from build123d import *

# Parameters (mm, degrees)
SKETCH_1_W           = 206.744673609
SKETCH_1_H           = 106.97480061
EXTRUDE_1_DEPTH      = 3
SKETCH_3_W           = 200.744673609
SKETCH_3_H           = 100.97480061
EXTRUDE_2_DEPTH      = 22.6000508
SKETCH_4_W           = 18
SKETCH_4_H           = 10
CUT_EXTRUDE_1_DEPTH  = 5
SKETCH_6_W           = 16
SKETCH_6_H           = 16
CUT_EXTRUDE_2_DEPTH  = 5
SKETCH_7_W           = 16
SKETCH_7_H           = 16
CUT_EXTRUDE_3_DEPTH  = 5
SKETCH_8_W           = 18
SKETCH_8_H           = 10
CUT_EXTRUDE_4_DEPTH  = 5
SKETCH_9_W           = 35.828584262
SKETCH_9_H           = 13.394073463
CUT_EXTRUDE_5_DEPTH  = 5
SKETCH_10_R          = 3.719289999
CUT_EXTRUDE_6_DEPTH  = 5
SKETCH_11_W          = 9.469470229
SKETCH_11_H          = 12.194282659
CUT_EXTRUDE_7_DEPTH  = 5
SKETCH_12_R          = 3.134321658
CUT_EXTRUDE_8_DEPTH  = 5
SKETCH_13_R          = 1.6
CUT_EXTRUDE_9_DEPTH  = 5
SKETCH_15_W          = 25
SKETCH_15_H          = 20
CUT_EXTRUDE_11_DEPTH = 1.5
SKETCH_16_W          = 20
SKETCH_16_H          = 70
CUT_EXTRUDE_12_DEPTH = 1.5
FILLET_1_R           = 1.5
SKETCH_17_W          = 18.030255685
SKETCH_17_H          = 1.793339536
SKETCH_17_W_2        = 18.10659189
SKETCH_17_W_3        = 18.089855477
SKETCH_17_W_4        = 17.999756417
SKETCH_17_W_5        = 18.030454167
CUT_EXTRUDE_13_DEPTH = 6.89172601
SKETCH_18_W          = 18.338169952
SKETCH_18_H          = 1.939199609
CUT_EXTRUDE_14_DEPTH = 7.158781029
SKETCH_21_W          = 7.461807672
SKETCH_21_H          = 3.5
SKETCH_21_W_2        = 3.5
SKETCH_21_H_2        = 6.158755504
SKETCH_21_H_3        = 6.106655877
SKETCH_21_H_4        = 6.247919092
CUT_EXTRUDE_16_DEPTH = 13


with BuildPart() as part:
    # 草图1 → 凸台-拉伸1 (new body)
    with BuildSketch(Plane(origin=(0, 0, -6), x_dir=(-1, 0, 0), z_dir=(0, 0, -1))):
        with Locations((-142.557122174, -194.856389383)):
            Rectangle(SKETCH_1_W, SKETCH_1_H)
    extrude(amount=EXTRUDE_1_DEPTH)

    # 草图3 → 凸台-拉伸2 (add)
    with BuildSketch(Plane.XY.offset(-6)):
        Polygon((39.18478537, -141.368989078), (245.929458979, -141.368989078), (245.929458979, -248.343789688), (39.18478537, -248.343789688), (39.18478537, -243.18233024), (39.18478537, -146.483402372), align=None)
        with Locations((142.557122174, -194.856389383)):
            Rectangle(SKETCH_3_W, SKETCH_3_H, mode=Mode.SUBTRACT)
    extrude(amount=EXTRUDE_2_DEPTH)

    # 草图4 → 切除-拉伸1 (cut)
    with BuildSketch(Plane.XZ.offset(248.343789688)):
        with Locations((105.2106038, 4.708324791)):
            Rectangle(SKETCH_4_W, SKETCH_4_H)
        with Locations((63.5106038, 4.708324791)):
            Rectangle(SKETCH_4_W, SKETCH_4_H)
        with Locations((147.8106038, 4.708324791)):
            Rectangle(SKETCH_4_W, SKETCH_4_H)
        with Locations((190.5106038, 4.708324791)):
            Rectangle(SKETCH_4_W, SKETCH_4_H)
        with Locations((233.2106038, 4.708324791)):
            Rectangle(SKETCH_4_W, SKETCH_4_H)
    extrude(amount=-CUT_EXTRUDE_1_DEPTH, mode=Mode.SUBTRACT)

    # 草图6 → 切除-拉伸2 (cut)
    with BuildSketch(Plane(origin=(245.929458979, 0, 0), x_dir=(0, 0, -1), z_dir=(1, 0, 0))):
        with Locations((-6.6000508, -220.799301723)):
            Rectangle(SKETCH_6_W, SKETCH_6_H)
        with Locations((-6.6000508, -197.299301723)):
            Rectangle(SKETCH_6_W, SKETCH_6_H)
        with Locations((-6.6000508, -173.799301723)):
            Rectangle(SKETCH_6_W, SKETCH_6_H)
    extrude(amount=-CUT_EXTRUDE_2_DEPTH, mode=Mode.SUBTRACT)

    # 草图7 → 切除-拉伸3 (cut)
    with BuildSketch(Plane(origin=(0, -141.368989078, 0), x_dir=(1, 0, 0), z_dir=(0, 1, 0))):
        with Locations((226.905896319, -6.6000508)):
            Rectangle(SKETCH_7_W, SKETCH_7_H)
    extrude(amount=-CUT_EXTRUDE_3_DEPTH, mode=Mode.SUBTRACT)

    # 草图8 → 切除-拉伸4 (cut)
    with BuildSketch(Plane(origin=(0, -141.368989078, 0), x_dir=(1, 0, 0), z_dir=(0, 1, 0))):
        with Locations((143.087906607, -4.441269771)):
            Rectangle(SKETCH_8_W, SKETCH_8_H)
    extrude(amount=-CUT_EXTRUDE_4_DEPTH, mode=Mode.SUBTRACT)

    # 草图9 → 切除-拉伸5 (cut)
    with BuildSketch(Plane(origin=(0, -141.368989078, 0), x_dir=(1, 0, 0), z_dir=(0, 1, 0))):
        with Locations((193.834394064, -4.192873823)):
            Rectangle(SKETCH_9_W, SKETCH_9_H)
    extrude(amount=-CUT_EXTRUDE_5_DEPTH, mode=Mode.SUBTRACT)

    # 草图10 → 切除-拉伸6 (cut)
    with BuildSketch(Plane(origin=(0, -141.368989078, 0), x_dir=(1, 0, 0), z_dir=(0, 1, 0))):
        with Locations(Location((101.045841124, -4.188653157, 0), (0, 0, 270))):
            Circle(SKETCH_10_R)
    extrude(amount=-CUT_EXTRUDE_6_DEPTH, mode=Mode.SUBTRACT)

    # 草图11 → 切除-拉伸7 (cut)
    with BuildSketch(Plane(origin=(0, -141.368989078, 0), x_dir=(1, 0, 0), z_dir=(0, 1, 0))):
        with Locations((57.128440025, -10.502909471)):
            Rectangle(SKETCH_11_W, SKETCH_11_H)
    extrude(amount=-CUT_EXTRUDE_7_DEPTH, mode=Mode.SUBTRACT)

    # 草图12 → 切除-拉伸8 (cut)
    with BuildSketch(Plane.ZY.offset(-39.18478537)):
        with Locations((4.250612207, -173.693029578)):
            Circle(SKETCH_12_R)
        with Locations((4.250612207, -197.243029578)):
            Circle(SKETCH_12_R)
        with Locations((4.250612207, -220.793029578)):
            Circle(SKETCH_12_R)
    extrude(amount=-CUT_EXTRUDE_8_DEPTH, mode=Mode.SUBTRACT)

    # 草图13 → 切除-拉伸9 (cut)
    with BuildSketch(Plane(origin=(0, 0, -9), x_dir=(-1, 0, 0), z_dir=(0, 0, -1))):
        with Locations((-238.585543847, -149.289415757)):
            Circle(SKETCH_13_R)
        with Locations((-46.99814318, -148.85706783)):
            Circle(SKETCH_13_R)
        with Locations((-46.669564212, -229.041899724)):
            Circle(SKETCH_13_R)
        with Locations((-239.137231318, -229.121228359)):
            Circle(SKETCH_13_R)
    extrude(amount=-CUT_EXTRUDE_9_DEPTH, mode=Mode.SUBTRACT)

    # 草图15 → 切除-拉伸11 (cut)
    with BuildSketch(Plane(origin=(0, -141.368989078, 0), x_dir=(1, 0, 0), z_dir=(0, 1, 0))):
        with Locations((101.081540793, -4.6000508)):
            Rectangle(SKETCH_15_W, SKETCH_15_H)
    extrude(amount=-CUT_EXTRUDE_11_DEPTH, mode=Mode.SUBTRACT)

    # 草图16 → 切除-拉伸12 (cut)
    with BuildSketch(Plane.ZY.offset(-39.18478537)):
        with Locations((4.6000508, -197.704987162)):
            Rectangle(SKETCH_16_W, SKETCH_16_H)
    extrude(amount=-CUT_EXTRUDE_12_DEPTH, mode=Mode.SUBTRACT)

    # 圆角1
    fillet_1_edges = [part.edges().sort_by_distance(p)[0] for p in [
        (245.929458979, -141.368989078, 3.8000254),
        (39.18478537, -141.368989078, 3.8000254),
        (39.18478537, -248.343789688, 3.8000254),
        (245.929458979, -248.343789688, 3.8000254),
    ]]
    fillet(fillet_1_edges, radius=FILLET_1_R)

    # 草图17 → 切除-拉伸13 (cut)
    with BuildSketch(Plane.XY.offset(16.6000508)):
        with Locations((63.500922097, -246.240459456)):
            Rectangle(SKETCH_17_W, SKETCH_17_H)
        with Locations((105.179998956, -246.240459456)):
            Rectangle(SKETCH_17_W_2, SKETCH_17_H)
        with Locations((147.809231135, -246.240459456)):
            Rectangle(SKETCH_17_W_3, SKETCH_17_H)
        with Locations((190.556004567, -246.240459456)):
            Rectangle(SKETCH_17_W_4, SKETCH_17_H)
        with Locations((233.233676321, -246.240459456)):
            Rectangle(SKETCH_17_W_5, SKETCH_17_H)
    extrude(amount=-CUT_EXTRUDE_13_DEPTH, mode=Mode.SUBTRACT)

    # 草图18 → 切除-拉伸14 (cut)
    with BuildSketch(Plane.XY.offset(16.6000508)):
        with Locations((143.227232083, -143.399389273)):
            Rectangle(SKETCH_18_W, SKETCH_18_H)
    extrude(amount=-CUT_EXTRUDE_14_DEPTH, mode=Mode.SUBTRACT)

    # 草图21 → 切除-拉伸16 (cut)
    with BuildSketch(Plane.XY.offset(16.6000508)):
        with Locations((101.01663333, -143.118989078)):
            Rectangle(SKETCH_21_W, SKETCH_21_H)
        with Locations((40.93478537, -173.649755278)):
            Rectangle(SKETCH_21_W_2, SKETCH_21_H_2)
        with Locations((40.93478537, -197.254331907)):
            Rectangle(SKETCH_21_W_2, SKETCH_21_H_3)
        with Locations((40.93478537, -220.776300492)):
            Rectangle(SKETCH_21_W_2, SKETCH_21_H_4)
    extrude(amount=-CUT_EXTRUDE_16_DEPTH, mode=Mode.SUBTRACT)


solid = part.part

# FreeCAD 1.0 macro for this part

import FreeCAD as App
import Part
import Sketcher
from FreeCAD import Vector
Q = App.Units.Quantity


def edges_at(feature, points):
    """Names of the edges that pass closest to the given points."""
    edges = feature.Shape.Edges
    near = lambda p: min(range(len(edges)), key=lambda i: edges[i].distToShape(Part.Vertex(*p))[0])
    return sorted({f"Edge{near(p) + 1}" for p in points})

doc = App.newDocument("Part")
body = doc.addObject("PartDesign::Body", "Body")

sketch1 = body.newObject("Sketcher::SketchObject", "Sketch")
sketch1.AttachmentSupport = (doc.getObject("XY_Plane"), [""])
sketch1.MapMode = "FlatFace"
sketch1.AttachmentOffset = App.Placement(Vector(0, 0, -6), App.Rotation())
sketch1.addGeometry(Part.LineSegment(Vector(245.929459, -141.368989, 0), Vector(245.929459, -248.34379, 0)), False)
sketch1.addGeometry(Part.LineSegment(Vector(245.929459, -248.34379, 0), Vector(39.184785, -248.34379, 0)), False)
sketch1.addGeometry(Part.LineSegment(Vector(39.184785, -248.34379, 0), Vector(39.184785, -141.368989, 0)), False)
sketch1.addGeometry(Part.LineSegment(Vector(39.184785, -141.368989, 0), Vector(245.929459, -141.368989, 0)), False)
sketch1.addConstraint(Sketcher.Constraint("Coincident", 0, 2, 1, 1))
sketch1.addConstraint(Sketcher.Constraint("Coincident", 1, 2, 2, 1))
sketch1.addConstraint(Sketcher.Constraint("Coincident", 2, 2, 3, 1))
sketch1.addConstraint(Sketcher.Constraint("Coincident", 3, 2, 0, 1))
sketch1.addConstraint(Sketcher.Constraint("Vertical", 0))
sketch1.addConstraint(Sketcher.Constraint("Horizontal", 1))
sketch1.addConstraint(Sketcher.Constraint("Vertical", 2))
sketch1.addConstraint(Sketcher.Constraint("Horizontal", 3))
sketch1.addConstraint(Sketcher.Constraint("DistanceY", 0, 2, 0, 1, Q("106.974801 mm")))
sketch1.addConstraint(Sketcher.Constraint("DistanceX", 1, 2, 1, 1, Q("206.744674 mm")))
sketch1.addConstraint(Sketcher.Constraint("DistanceX", -1, 1, 0, 2, Q("245.929459 mm")))
sketch1.addConstraint(Sketcher.Constraint("DistanceY", 0, 2, -1, 1, Q("248.34379 mm")))
pad1 = body.newObject("PartDesign::Pad", "Pad")
pad1.Profile = sketch1
pad1.Length = 3
pad1.Reversed = True

sketch2 = body.newObject("Sketcher::SketchObject", "Sketch001")
sketch2.AttachmentSupport = (doc.getObject("XY_Plane"), [""])
sketch2.MapMode = "FlatFace"
sketch2.AttachmentOffset = App.Placement(Vector(0, 0, -6), App.Rotation())
sketch2.addGeometry(Part.LineSegment(Vector(245.929459, -141.368989, 0), Vector(39.184785, -141.368989, 0)), False)
sketch2.addGeometry(Part.LineSegment(Vector(39.184785, -141.368989, 0), Vector(39.184785, -248.34379, 0)), False)
sketch2.addGeometry(Part.LineSegment(Vector(39.184785, -248.34379, 0), Vector(245.929459, -248.34379, 0)), False)
sketch2.addGeometry(Part.LineSegment(Vector(245.929459, -248.34379, 0), Vector(245.929459, -141.368989, 0)), False)
sketch2.addGeometry(Part.LineSegment(Vector(42.184785, -245.34379, 0), Vector(42.184785, -144.368989, 0)), False)
sketch2.addGeometry(Part.LineSegment(Vector(42.184785, -144.368989, 0), Vector(242.929459, -144.368989, 0)), False)
sketch2.addGeometry(Part.LineSegment(Vector(242.929459, -144.368989, 0), Vector(242.929459, -245.34379, 0)), False)
sketch2.addGeometry(Part.LineSegment(Vector(242.929459, -245.34379, 0), Vector(42.184785, -245.34379, 0)), False)
sketch2.addConstraint(Sketcher.Constraint("Coincident", 0, 2, 1, 1))
sketch2.addConstraint(Sketcher.Constraint("Coincident", 1, 2, 2, 1))
sketch2.addConstraint(Sketcher.Constraint("Coincident", 2, 2, 3, 1))
sketch2.addConstraint(Sketcher.Constraint("Coincident", 3, 2, 0, 1))
sketch2.addConstraint(Sketcher.Constraint("Coincident", 4, 2, 5, 1))
sketch2.addConstraint(Sketcher.Constraint("Coincident", 5, 2, 6, 1))
sketch2.addConstraint(Sketcher.Constraint("Coincident", 6, 2, 7, 1))
sketch2.addConstraint(Sketcher.Constraint("Coincident", 7, 2, 4, 1))
sketch2.addConstraint(Sketcher.Constraint("Horizontal", 0))
sketch2.addConstraint(Sketcher.Constraint("Vertical", 1))
sketch2.addConstraint(Sketcher.Constraint("Horizontal", 2))
sketch2.addConstraint(Sketcher.Constraint("Vertical", 3))
sketch2.addConstraint(Sketcher.Constraint("Vertical", 4))
sketch2.addConstraint(Sketcher.Constraint("Horizontal", 5))
sketch2.addConstraint(Sketcher.Constraint("Vertical", 6))
sketch2.addConstraint(Sketcher.Constraint("Horizontal", 7))
sketch2.addConstraint(Sketcher.Constraint("DistanceX", 0, 2, 4, 2, Q("3 mm")))
sketch2.addConstraint(Sketcher.Constraint("DistanceY", 4, 2, 0, 2, Q("3 mm")))
sketch2.addConstraint(Sketcher.Constraint("DistanceX", 5, 2, 3, 2, Q("3 mm")))
sketch2.addConstraint(Sketcher.Constraint("DistanceY", 2, 2, 6, 2, Q("3 mm")))
sketch2.addConstraint(Sketcher.Constraint("DistanceY", 1, 2, 1, 1, Q("106.974801 mm")))
sketch2.addConstraint(Sketcher.Constraint("DistanceX", 0, 2, 0, 1, Q("206.744674 mm")))
sketch2.addConstraint(Sketcher.Constraint("DistanceY", 0, 2, -1, 1, Q("141.368989 mm")))
sketch2.addConstraint(Sketcher.Constraint("DistanceX", -1, 1, 2, 2, Q("245.929459 mm")))
pad2 = body.newObject("PartDesign::Pad", "Pad001")
pad2.Profile = sketch2
pad2.Length = 22.600051

sketch3 = body.newObject("Sketcher::SketchObject", "Sketch002")
sketch3.AttachmentSupport = (doc.getObject("XZ_Plane"), [""])
sketch3.MapMode = "FlatFace"
sketch3.AttachmentOffset = App.Placement(Vector(0, 0, 248.34379), App.Rotation())
sketch3.addGeometry(Part.LineSegment(Vector(96.210604, 9.708325, 0), Vector(96.210604, -0.291675, 0)), False)
sketch3.addGeometry(Part.LineSegment(Vector(96.210604, -0.291675, 0), Vector(114.210604, -0.291675, 0)), False)
sketch3.addGeometry(Part.LineSegment(Vector(114.210604, -0.291675, 0), Vector(114.210604, 9.708325, 0)), False)
sketch3.addGeometry(Part.LineSegment(Vector(114.210604, 9.708325, 0), Vector(96.210604, 9.708325, 0)), False)
sketch3.addGeometry(Part.LineSegment(Vector(54.510604, 9.708325, 0), Vector(54.510604, -0.291675, 0)), False)
sketch3.addGeometry(Part.LineSegment(Vector(54.510604, -0.291675, 0), Vector(72.510604, -0.291675, 0)), False)
sketch3.addGeometry(Part.LineSegment(Vector(72.510604, -0.291675, 0), Vector(72.510604, 9.708325, 0)), False)
sketch3.addGeometry(Part.LineSegment(Vector(72.510604, 9.708325, 0), Vector(54.510604, 9.708325, 0)), False)
sketch3.addGeometry(Part.LineSegment(Vector(138.810604, 9.708325, 0), Vector(138.810604, -0.291675, 0)), False)
sketch3.addGeometry(Part.LineSegment(Vector(138.810604, -0.291675, 0), Vector(156.810604, -0.291675, 0)), False)
sketch3.addGeometry(Part.LineSegment(Vector(156.810604, -0.291675, 0), Vector(156.810604, 9.708325, 0)), False)
sketch3.addGeometry(Part.LineSegment(Vector(156.810604, 9.708325, 0), Vector(138.810604, 9.708325, 0)), False)
sketch3.addGeometry(Part.LineSegment(Vector(181.510604, 9.708325, 0), Vector(181.510604, -0.291675, 0)), False)
sketch3.addGeometry(Part.LineSegment(Vector(181.510604, -0.291675, 0), Vector(199.510604, -0.291675, 0)), False)
sketch3.addGeometry(Part.LineSegment(Vector(199.510604, -0.291675, 0), Vector(199.510604, 9.708325, 0)), False)
sketch3.addGeometry(Part.LineSegment(Vector(199.510604, 9.708325, 0), Vector(181.510604, 9.708325, 0)), False)
sketch3.addGeometry(Part.LineSegment(Vector(224.210604, 9.708325, 0), Vector(224.210604, -0.291675, 0)), False)
sketch3.addGeometry(Part.LineSegment(Vector(224.210604, -0.291675, 0), Vector(242.210604, -0.291675, 0)), False)
sketch3.addGeometry(Part.LineSegment(Vector(242.210604, -0.291675, 0), Vector(242.210604, 9.708325, 0)), False)
sketch3.addGeometry(Part.LineSegment(Vector(242.210604, 9.708325, 0), Vector(224.210604, 9.708325, 0)), False)
sketch3.addConstraint(Sketcher.Constraint("Coincident", 0, 2, 1, 1))
sketch3.addConstraint(Sketcher.Constraint("Coincident", 1, 2, 2, 1))
sketch3.addConstraint(Sketcher.Constraint("Coincident", 2, 2, 3, 1))
sketch3.addConstraint(Sketcher.Constraint("Coincident", 3, 2, 0, 1))
sketch3.addConstraint(Sketcher.Constraint("Coincident", 4, 2, 5, 1))
sketch3.addConstraint(Sketcher.Constraint("Coincident", 5, 2, 6, 1))
sketch3.addConstraint(Sketcher.Constraint("Coincident", 6, 2, 7, 1))
sketch3.addConstraint(Sketcher.Constraint("Coincident", 7, 2, 4, 1))
sketch3.addConstraint(Sketcher.Constraint("Coincident", 8, 2, 9, 1))
sketch3.addConstraint(Sketcher.Constraint("Coincident", 9, 2, 10, 1))
sketch3.addConstraint(Sketcher.Constraint("Coincident", 10, 2, 11, 1))
sketch3.addConstraint(Sketcher.Constraint("Coincident", 11, 2, 8, 1))
sketch3.addConstraint(Sketcher.Constraint("Coincident", 12, 2, 13, 1))
sketch3.addConstraint(Sketcher.Constraint("Coincident", 13, 2, 14, 1))
sketch3.addConstraint(Sketcher.Constraint("Coincident", 14, 2, 15, 1))
sketch3.addConstraint(Sketcher.Constraint("Coincident", 15, 2, 12, 1))
sketch3.addConstraint(Sketcher.Constraint("Coincident", 16, 2, 17, 1))
sketch3.addConstraint(Sketcher.Constraint("Coincident", 17, 2, 18, 1))
sketch3.addConstraint(Sketcher.Constraint("Coincident", 18, 2, 19, 1))
sketch3.addConstraint(Sketcher.Constraint("Coincident", 19, 2, 16, 1))
sketch3.addConstraint(Sketcher.Constraint("Vertical", 0))
sketch3.addConstraint(Sketcher.Constraint("Horizontal", 1))
sketch3.addConstraint(Sketcher.Constraint("Vertical", 2))
sketch3.addConstraint(Sketcher.Constraint("Horizontal", 3))
sketch3.addConstraint(Sketcher.Constraint("Vertical", 4))
sketch3.addConstraint(Sketcher.Constraint("Horizontal", 5))
sketch3.addConstraint(Sketcher.Constraint("Vertical", 6))
sketch3.addConstraint(Sketcher.Constraint("Horizontal", 7))
sketch3.addConstraint(Sketcher.Constraint("Vertical", 8))
sketch3.addConstraint(Sketcher.Constraint("Horizontal", 9))
sketch3.addConstraint(Sketcher.Constraint("Vertical", 10))
sketch3.addConstraint(Sketcher.Constraint("Horizontal", 11))
sketch3.addConstraint(Sketcher.Constraint("Vertical", 12))
sketch3.addConstraint(Sketcher.Constraint("Horizontal", 13))
sketch3.addConstraint(Sketcher.Constraint("Vertical", 14))
sketch3.addConstraint(Sketcher.Constraint("Horizontal", 15))
sketch3.addConstraint(Sketcher.Constraint("Vertical", 16))
sketch3.addConstraint(Sketcher.Constraint("Horizontal", 17))
sketch3.addConstraint(Sketcher.Constraint("Vertical", 18))
sketch3.addConstraint(Sketcher.Constraint("Horizontal", 19))
sketch3.addConstraint(Sketcher.Constraint("Horizontal", 1, 2, 4, 2))
sketch3.addConstraint(Sketcher.Constraint("Horizontal", 3, 2, 6, 2))
sketch3.addConstraint(Sketcher.Constraint("Horizontal", 5, 2, 8, 2))
sketch3.addConstraint(Sketcher.Constraint("Horizontal", 7, 2, 10, 2))
sketch3.addConstraint(Sketcher.Constraint("Horizontal", 9, 2, 12, 2))
sketch3.addConstraint(Sketcher.Constraint("Horizontal", 11, 2, 14, 2))
sketch3.addConstraint(Sketcher.Constraint("Horizontal", 13, 2, 16, 2))
sketch3.addConstraint(Sketcher.Constraint("Horizontal", 15, 2, 18, 2))
sketch3.addConstraint(Sketcher.Constraint("Equal", 3, 5))
sketch3.addConstraint(Sketcher.Constraint("Equal", 7, 9))
sketch3.addConstraint(Sketcher.Constraint("Equal", 11, 13))
sketch3.addConstraint(Sketcher.Constraint("Equal", 15, 17))
sketch3.addConstraint(Sketcher.Constraint("DistanceX", 1, 1, 1, 2, Q("18 mm")))
sketch3.addConstraint(Sketcher.Constraint("DistanceY", 0, 2, 0, 1, Q("10 mm")))
sketch3.addConstraint(Sketcher.Constraint("DistanceX", 4, 2, 0, 2, Q("41.7 mm")))
sketch3.addConstraint(Sketcher.Constraint("DistanceX", 1, 2, 8, 2, Q("24.6 mm")))
sketch3.addConstraint(Sketcher.Constraint("DistanceX", 9, 2, 12, 2, Q("24.7 mm")))
sketch3.addConstraint(Sketcher.Constraint("DistanceX", 13, 2, 16, 2, Q("24.7 mm")))
sketch3.addConstraint(Sketcher.Constraint("DistanceX", -1, 1, 0, 2, Q("96.210604 mm")))
sketch3.addConstraint(Sketcher.Constraint("DistanceY", 0, 2, -1, 1, Q("0.291675 mm")))
pocket1 = body.newObject("PartDesign::Pocket", "Pocket")
pocket1.Profile = sketch3
pocket1.Length = 5

sketch4 = body.newObject("Sketcher::SketchObject", "Sketch003")
sketch4.AttachmentSupport = (doc.getObject("YZ_Plane"), [""])
sketch4.MapMode = "FlatFace"
sketch4.AttachmentOffset = App.Placement(Vector(0, 0, 245.929459), App.Rotation())
sketch4.addGeometry(Part.LineSegment(Vector(-212.799302, 14.600051, 0), Vector(-228.799302, 14.600051, 0)), False)
sketch4.addGeometry(Part.LineSegment(Vector(-228.799302, 14.600051, 0), Vector(-228.799302, -1.399949, 0)), False)
sketch4.addGeometry(Part.LineSegment(Vector(-228.799302, -1.399949, 0), Vector(-212.799302, -1.399949, 0)), False)
sketch4.addGeometry(Part.LineSegment(Vector(-212.799302, -1.399949, 0), Vector(-212.799302, 14.600051, 0)), False)
sketch4.addGeometry(Part.LineSegment(Vector(-189.299302, 14.600051, 0), Vector(-205.299302, 14.600051, 0)), False)
sketch4.addGeometry(Part.LineSegment(Vector(-205.299302, 14.600051, 0), Vector(-205.299302, -1.399949, 0)), False)
sketch4.addGeometry(Part.LineSegment(Vector(-205.299302, -1.399949, 0), Vector(-189.299302, -1.399949, 0)), False)
sketch4.addGeometry(Part.LineSegment(Vector(-189.299302, -1.399949, 0), Vector(-189.299302, 14.600051, 0)), False)
sketch4.addGeometry(Part.LineSegment(Vector(-165.799302, 14.600051, 0), Vector(-181.799302, 14.600051, 0)), False)
sketch4.addGeometry(Part.LineSegment(Vector(-181.799302, 14.600051, 0), Vector(-181.799302, -1.399949, 0)), False)
sketch4.addGeometry(Part.LineSegment(Vector(-181.799302, -1.399949, 0), Vector(-165.799302, -1.399949, 0)), False)
sketch4.addGeometry(Part.LineSegment(Vector(-165.799302, -1.399949, 0), Vector(-165.799302, 14.600051, 0)), False)
sketch4.addConstraint(Sketcher.Constraint("Coincident", 0, 2, 1, 1))
sketch4.addConstraint(Sketcher.Constraint("Coincident", 1, 2, 2, 1))
sketch4.addConstraint(Sketcher.Constraint("Coincident", 2, 2, 3, 1))
sketch4.addConstraint(Sketcher.Constraint("Coincident", 3, 2, 0, 1))
sketch4.addConstraint(Sketcher.Constraint("Coincident", 4, 2, 5, 1))
sketch4.addConstraint(Sketcher.Constraint("Coincident", 5, 2, 6, 1))
sketch4.addConstraint(Sketcher.Constraint("Coincident", 6, 2, 7, 1))
sketch4.addConstraint(Sketcher.Constraint("Coincident", 7, 2, 4, 1))
sketch4.addConstraint(Sketcher.Constraint("Coincident", 8, 2, 9, 1))
sketch4.addConstraint(Sketcher.Constraint("Coincident", 9, 2, 10, 1))
sketch4.addConstraint(Sketcher.Constraint("Coincident", 10, 2, 11, 1))
sketch4.addConstraint(Sketcher.Constraint("Coincident", 11, 2, 8, 1))
sketch4.addConstraint(Sketcher.Constraint("Horizontal", 0))
sketch4.addConstraint(Sketcher.Constraint("Vertical", 1))
sketch4.addConstraint(Sketcher.Constraint("Horizontal", 2))
sketch4.addConstraint(Sketcher.Constraint("Vertical", 3))
sketch4.addConstraint(Sketcher.Constraint("Horizontal", 4))
sketch4.addConstraint(Sketcher.Constraint("Vertical", 5))
sketch4.addConstraint(Sketcher.Constraint("Horizontal", 6))
sketch4.addConstraint(Sketcher.Constraint("Vertical", 7))
sketch4.addConstraint(Sketcher.Constraint("Horizontal", 8))
sketch4.addConstraint(Sketcher.Constraint("Vertical", 9))
sketch4.addConstraint(Sketcher.Constraint("Horizontal", 10))
sketch4.addConstraint(Sketcher.Constraint("Vertical", 11))
sketch4.addConstraint(Sketcher.Constraint("Horizontal", 3, 2, 4, 2))
sketch4.addConstraint(Sketcher.Constraint("Horizontal", 2, 2, 5, 2))
sketch4.addConstraint(Sketcher.Constraint("Horizontal", 7, 2, 8, 2))
sketch4.addConstraint(Sketcher.Constraint("Horizontal", 6, 2, 9, 2))
sketch4.addConstraint(Sketcher.Constraint("Equal", 2, 4))
sketch4.addConstraint(Sketcher.Constraint("Equal", 6, 8))
sketch4.addConstraint(Sketcher.Constraint("Equal", 10, 1))
sketch4.addConstraint(Sketcher.Constraint("DistanceX", 0, 2, 0, 1, Q("16 mm")))
sketch4.addConstraint(Sketcher.Constraint("DistanceX", 3, 2, 8, 2, Q("31 mm")))
sketch4.addConstraint(Sketcher.Constraint("DistanceX", 3, 2, 4, 2, Q("7.5 mm")))
sketch4.addConstraint(Sketcher.Constraint("DistanceX", 0, 2, -1, 1, Q("228.799302 mm")))
sketch4.addConstraint(Sketcher.Constraint("DistanceY", -1, 1, 0, 2, Q("14.600051 mm")))
pocket2 = body.newObject("PartDesign::Pocket", "Pocket001")
pocket2.Profile = sketch4
pocket2.Length = 5

sketch5 = body.newObject("Sketcher::SketchObject", "Sketch004")
sketch5.AttachmentSupport = (doc.getObject("XZ_Plane"), [""])
sketch5.MapMode = "FlatFace"
sketch5.AttachmentOffset = App.Placement(Vector(0, 0, 141.368989), App.Rotation())
sketch5.addGeometry(Part.LineSegment(Vector(218.905896, -1.399949, 0), Vector(218.905896, 14.600051, 0)), False)
sketch5.addGeometry(Part.LineSegment(Vector(218.905896, 14.600051, 0), Vector(234.905896, 14.600051, 0)), False)
sketch5.addGeometry(Part.LineSegment(Vector(234.905896, 14.600051, 0), Vector(234.905896, -1.399949, 0)), False)
sketch5.addGeometry(Part.LineSegment(Vector(234.905896, -1.399949, 0), Vector(218.905896, -1.399949, 0)), False)
sketch5.addConstraint(Sketcher.Constraint("Coincident", 0, 2, 1, 1))
sketch5.addConstraint(Sketcher.Constraint("Coincident", 1, 2, 2, 1))
sketch5.addConstraint(Sketcher.Constraint("Coincident", 2, 2, 3, 1))
sketch5.addConstraint(Sketcher.Constraint("Coincident", 3, 2, 0, 1))
sketch5.addConstraint(Sketcher.Constraint("Vertical", 0))
sketch5.addConstraint(Sketcher.Constraint("Horizontal", 1))
sketch5.addConstraint(Sketcher.Constraint("Vertical", 2))
sketch5.addConstraint(Sketcher.Constraint("Horizontal", 3))
sketch5.addConstraint(Sketcher.Constraint("Equal", 3, 0))
sketch5.addConstraint(Sketcher.Constraint("DistanceX", 1, 1, 1, 2, Q("16 mm")))
sketch5.addConstraint(Sketcher.Constraint("DistanceY", -1, 1, 0, 2, Q("14.600051 mm")))
sketch5.addConstraint(Sketcher.Constraint("DistanceX", -1, 1, 0, 2, Q("218.905896 mm")))
pocket3 = body.newObject("PartDesign::Pocket", "Pocket002")
pocket3.Profile = sketch5
pocket3.Length = 5
pocket3.Reversed = True

sketch6 = body.newObject("Sketcher::SketchObject", "Sketch005")
sketch6.AttachmentSupport = (doc.getObject("XZ_Plane"), [""])
sketch6.MapMode = "FlatFace"
sketch6.AttachmentOffset = App.Placement(Vector(0, 0, 141.368989), App.Rotation())
sketch6.addGeometry(Part.LineSegment(Vector(134.087907, -0.55873, 0), Vector(134.087907, 9.44127, 0)), False)
sketch6.addGeometry(Part.LineSegment(Vector(134.087907, 9.44127, 0), Vector(152.087907, 9.44127, 0)), False)
sketch6.addGeometry(Part.LineSegment(Vector(152.087907, 9.44127, 0), Vector(152.087907, -0.55873, 0)), False)
sketch6.addGeometry(Part.LineSegment(Vector(152.087907, -0.55873, 0), Vector(134.087907, -0.55873, 0)), False)
sketch6.addConstraint(Sketcher.Constraint("Coincident", 0, 2, 1, 1))
sketch6.addConstraint(Sketcher.Constraint("Coincident", 1, 2, 2, 1))
sketch6.addConstraint(Sketcher.Constraint("Coincident", 2, 2, 3, 1))
sketch6.addConstraint(Sketcher.Constraint("Coincident", 3, 2, 0, 1))
sketch6.addConstraint(Sketcher.Constraint("Vertical", 0))
sketch6.addConstraint(Sketcher.Constraint("Horizontal", 1))
sketch6.addConstraint(Sketcher.Constraint("Vertical", 2))
sketch6.addConstraint(Sketcher.Constraint("Horizontal", 3))
sketch6.addConstraint(Sketcher.Constraint("DistanceX", 1, 1, 1, 2, Q("18 mm")))
sketch6.addConstraint(Sketcher.Constraint("DistanceY", 0, 1, 0, 2, Q("10 mm")))
sketch6.addConstraint(Sketcher.Constraint("DistanceY", -1, 1, 0, 2, Q("9.44127 mm")))
sketch6.addConstraint(Sketcher.Constraint("DistanceX", -1, 1, 0, 2, Q("134.087907 mm")))
pocket4 = body.newObject("PartDesign::Pocket", "Pocket003")
pocket4.Profile = sketch6
pocket4.Length = 5
pocket4.Reversed = True

sketch7 = body.newObject("Sketcher::SketchObject", "Sketch006")
sketch7.AttachmentSupport = (doc.getObject("XZ_Plane"), [""])
sketch7.MapMode = "FlatFace"
sketch7.AttachmentOffset = App.Placement(Vector(0, 0, 141.368989), App.Rotation())
sketch7.addGeometry(Part.LineSegment(Vector(175.920102, -2.504163, 0), Vector(175.920102, 10.889911, 0)), False)
sketch7.addGeometry(Part.LineSegment(Vector(175.920102, 10.889911, 0), Vector(211.748686, 10.889911, 0)), False)
sketch7.addGeometry(Part.LineSegment(Vector(211.748686, 10.889911, 0), Vector(211.748686, -2.504163, 0)), False)
sketch7.addGeometry(Part.LineSegment(Vector(211.748686, -2.504163, 0), Vector(175.920102, -2.504163, 0)), False)
sketch7.addConstraint(Sketcher.Constraint("Coincident", 0, 2, 1, 1))
sketch7.addConstraint(Sketcher.Constraint("Coincident", 1, 2, 2, 1))
sketch7.addConstraint(Sketcher.Constraint("Coincident", 2, 2, 3, 1))
sketch7.addConstraint(Sketcher.Constraint("Coincident", 3, 2, 0, 1))
sketch7.addConstraint(Sketcher.Constraint("Vertical", 0))
sketch7.addConstraint(Sketcher.Constraint("Horizontal", 1))
sketch7.addConstraint(Sketcher.Constraint("Vertical", 2))
sketch7.addConstraint(Sketcher.Constraint("Horizontal", 3))
sketch7.addConstraint(Sketcher.Constraint("DistanceX", -1, 1, 0, 2, Q("175.920102 mm")))
sketch7.addConstraint(Sketcher.Constraint("DistanceX", 1, 1, 1, 2, Q("35.828584 mm")))
sketch7.addConstraint(Sketcher.Constraint("DistanceY", 0, 1, 0, 2, Q("13.394073 mm")))
sketch7.addConstraint(Sketcher.Constraint("DistanceY", -1, 1, 0, 2, Q("10.889911 mm")))
pocket5 = body.newObject("PartDesign::Pocket", "Pocket004")
pocket5.Profile = sketch7
pocket5.Length = 5
pocket5.Reversed = True

sketch8 = body.newObject("Sketcher::SketchObject", "Sketch007")
sketch8.AttachmentSupport = (doc.getObject("XZ_Plane"), [""])
sketch8.MapMode = "FlatFace"
sketch8.AttachmentOffset = App.Placement(Vector(0, 0, 141.368989), App.Rotation())
sketch8.addGeometry(Part.Circle(Vector(101.045841, 4.188653, 0), Vector(0, 0, 1), 3.71929), False)
sketch8.addConstraint(Sketcher.Constraint("Diameter", 0, Q("7.43858 mm")))
sketch8.addConstraint(Sketcher.Constraint("DistanceX", -1, 1, 0, 3, Q("101.045841 mm")))
sketch8.addConstraint(Sketcher.Constraint("DistanceY", -1, 1, 0, 3, Q("4.188653 mm")))
pocket6 = body.newObject("PartDesign::Pocket", "Pocket005")
pocket6.Profile = sketch8
pocket6.Length = 5
pocket6.Reversed = True

sketch9 = body.newObject("Sketcher::SketchObject", "Sketch008")
sketch9.AttachmentSupport = (doc.getObject("XZ_Plane"), [""])
sketch9.MapMode = "FlatFace"
sketch9.AttachmentOffset = App.Placement(Vector(0, 0, 141.368989), App.Rotation())
sketch9.addGeometry(Part.LineSegment(Vector(52.393705, 4.405768, 0), Vector(52.393705, 16.600051, 0)), False)
sketch9.addGeometry(Part.LineSegment(Vector(52.393705, 16.600051, 0), Vector(61.863175, 16.600051, 0)), False)
sketch9.addGeometry(Part.LineSegment(Vector(61.863175, 16.600051, 0), Vector(61.863175, 4.405768, 0)), False)
sketch9.addGeometry(Part.LineSegment(Vector(61.863175, 4.405768, 0), Vector(52.393705, 4.405768, 0)), False)
sketch9.addConstraint(Sketcher.Constraint("Coincident", 0, 2, 1, 1))
sketch9.addConstraint(Sketcher.Constraint("Coincident", 1, 2, 2, 1))
sketch9.addConstraint(Sketcher.Constraint("Coincident", 2, 2, 3, 1))
sketch9.addConstraint(Sketcher.Constraint("Coincident", 3, 2, 0, 1))
sketch9.addConstraint(Sketcher.Constraint("Vertical", 0))
sketch9.addConstraint(Sketcher.Constraint("Horizontal", 1))
sketch9.addConstraint(Sketcher.Constraint("Vertical", 2))
sketch9.addConstraint(Sketcher.Constraint("Horizontal", 3))
sketch9.addConstraint(Sketcher.Constraint("DistanceX", 1, 1, 1, 2, Q("9.46947 mm")))
sketch9.addConstraint(Sketcher.Constraint("DistanceY", 0, 1, 0, 2, Q("12.194283 mm")))
sketch9.addConstraint(Sketcher.Constraint("DistanceY", -1, 1, 0, 2, Q("16.600051 mm")))
sketch9.addConstraint(Sketcher.Constraint("DistanceX", -1, 1, 0, 2, Q("52.393705 mm")))
pocket7 = body.newObject("PartDesign::Pocket", "Pocket006")
pocket7.Profile = sketch9
pocket7.Length = 5
pocket7.Reversed = True

sketch10 = body.newObject("Sketcher::SketchObject", "Sketch009")
sketch10.AttachmentSupport = (doc.getObject("YZ_Plane"), [""])
sketch10.MapMode = "FlatFace"
sketch10.AttachmentOffset = App.Placement(Vector(0, 0, 39.184785), App.Rotation())
sketch10.addGeometry(Part.Circle(Vector(-173.69303, 4.250612, 0), Vector(0, 0, 1), 3.134322), False)
sketch10.addGeometry(Part.Circle(Vector(-197.24303, 4.250612, 0), Vector(0, 0, 1), 3.134322), False)
sketch10.addGeometry(Part.Circle(Vector(-220.79303, 4.250612, 0), Vector(0, 0, 1), 3.134322), False)
sketch10.addConstraint(Sketcher.Constraint("Equal", 0, 1))
sketch10.addConstraint(Sketcher.Constraint("Equal", 1, 2))
sketch10.addConstraint(Sketcher.Constraint("Horizontal", 0, 3, 1, 3))
sketch10.addConstraint(Sketcher.Constraint("Horizontal", 1, 3, 2, 3))
sketch10.addConstraint(Sketcher.Constraint("DistanceX", 2, 3, 0, 3, Q("47.1 mm")))
sketch10.addConstraint(Sketcher.Constraint("DistanceX", 1, 3, 0, 3, Q("23.55 mm")))
sketch10.addConstraint(Sketcher.Constraint("Diameter", 0, Q("6.268643 mm")))
sketch10.addConstraint(Sketcher.Constraint("DistanceX", 0, 3, -1, 1, Q("173.69303 mm")))
sketch10.addConstraint(Sketcher.Constraint("DistanceY", -1, 1, 0, 3, Q("4.250612 mm")))
pocket8 = body.newObject("PartDesign::Pocket", "Pocket007")
pocket8.Profile = sketch10
pocket8.Length = 5
pocket8.Reversed = True

sketch11 = body.newObject("Sketcher::SketchObject", "Sketch010")
sketch11.AttachmentSupport = (doc.getObject("XY_Plane"), [""])
sketch11.MapMode = "FlatFace"
sketch11.AttachmentOffset = App.Placement(Vector(0, 0, -9), App.Rotation())
sketch11.addGeometry(Part.Circle(Vector(238.585544, -149.289416, 0), Vector(0, 0, 1), 1.6), False)
sketch11.addGeometry(Part.Circle(Vector(46.998143, -148.857068, 0), Vector(0, 0, 1), 1.6), False)
sketch11.addGeometry(Part.Circle(Vector(46.669564, -229.0419, 0), Vector(0, 0, 1), 1.6), False)
sketch11.addGeometry(Part.Circle(Vector(239.137231, -229.121228, 0), Vector(0, 0, 1), 1.6), False)
sketch11.addConstraint(Sketcher.Constraint("Equal", 0, 1))
sketch11.addConstraint(Sketcher.Constraint("Equal", 1, 2))
sketch11.addConstraint(Sketcher.Constraint("Equal", 2, 3))
sketch11.addConstraint(Sketcher.Constraint("Diameter", 0, Q("3.2 mm")))
sketch11.addConstraint(Sketcher.Constraint("DistanceY", 2, 3, -1, 1, Q("229.0419 mm")))
sketch11.addConstraint(Sketcher.Constraint("DistanceX", 1, 3, 0, 3, Q("191.587401 mm")))
sketch11.addConstraint(Sketcher.Constraint("DistanceX", -1, 1, 3, 3, Q("239.137231 mm")))
sketch11.addConstraint(Sketcher.Constraint("DistanceY", 3, 3, -1, 1, Q("229.121228 mm")))
sketch11.addConstraint(Sketcher.Constraint("DistanceX", 2, 3, 1, 3, Q("0.328579 mm")))
sketch11.addConstraint(Sketcher.Constraint("DistanceY", 2, 3, 1, 3, Q("80.184832 mm")))
sketch11.addConstraint(Sketcher.Constraint("DistanceX", 1, 3, 3, 3, Q("192.139088 mm")))
sketch11.addConstraint(Sketcher.Constraint("DistanceY", 0, 3, -1, 1, Q("149.289416 mm")))
pocket9 = body.newObject("PartDesign::Pocket", "Pocket008")
pocket9.Profile = sketch11
pocket9.Length = 5
pocket9.Reversed = True

sketch12 = body.newObject("Sketcher::SketchObject", "Sketch011")
sketch12.AttachmentSupport = (doc.getObject("XZ_Plane"), [""])
sketch12.MapMode = "FlatFace"
sketch12.AttachmentOffset = App.Placement(Vector(0, 0, 141.368989), App.Rotation())
sketch12.addGeometry(Part.LineSegment(Vector(88.581541, -5.399949, 0), Vector(88.581541, 14.600051, 0)), False)
sketch12.addGeometry(Part.LineSegment(Vector(88.581541, 14.600051, 0), Vector(113.581541, 14.600051, 0)), False)
sketch12.addGeometry(Part.LineSegment(Vector(113.581541, 14.600051, 0), Vector(113.581541, -5.399949, 0)), False)
sketch12.addGeometry(Part.LineSegment(Vector(113.581541, -5.399949, 0), Vector(88.581541, -5.399949, 0)), False)
sketch12.addConstraint(Sketcher.Constraint("Coincident", 0, 2, 1, 1))
sketch12.addConstraint(Sketcher.Constraint("Coincident", 1, 2, 2, 1))
sketch12.addConstraint(Sketcher.Constraint("Coincident", 2, 2, 3, 1))
sketch12.addConstraint(Sketcher.Constraint("Coincident", 3, 2, 0, 1))
sketch12.addConstraint(Sketcher.Constraint("Vertical", 0))
sketch12.addConstraint(Sketcher.Constraint("Horizontal", 1))
sketch12.addConstraint(Sketcher.Constraint("Vertical", 2))
sketch12.addConstraint(Sketcher.Constraint("Horizontal", 3))
sketch12.addConstraint(Sketcher.Constraint("DistanceX", 1, 1, 1, 2, Q("25 mm")))
sketch12.addConstraint(Sketcher.Constraint("DistanceY", 0, 1, 0, 2, Q("20 mm")))
sketch12.addConstraint(Sketcher.Constraint("DistanceX", -1, 1, 0, 2, Q("88.581541 mm")))
sketch12.addConstraint(Sketcher.Constraint("DistanceY", -1, 1, 0, 2, Q("14.600051 mm")))
pocket10 = body.newObject("PartDesign::Pocket", "Pocket009")
pocket10.Profile = sketch12
pocket10.Length = 1.5
pocket10.Reversed = True

sketch13 = body.newObject("Sketcher::SketchObject", "Sketch012")
sketch13.AttachmentSupport = (doc.getObject("YZ_Plane"), [""])
sketch13.MapMode = "FlatFace"
sketch13.AttachmentOffset = App.Placement(Vector(0, 0, 39.184785), App.Rotation())
sketch13.addGeometry(Part.LineSegment(Vector(-162.704987, -5.399949, 0), Vector(-232.704987, -5.399949, 0)), False)
sketch13.addGeometry(Part.LineSegment(Vector(-232.704987, -5.399949, 0), Vector(-232.704987, 14.600051, 0)), False)
sketch13.addGeometry(Part.LineSegment(Vector(-232.704987, 14.600051, 0), Vector(-162.704987, 14.600051, 0)), False)
sketch13.addGeometry(Part.LineSegment(Vector(-162.704987, 14.600051, 0), Vector(-162.704987, -5.399949, 0)), False)
sketch13.addConstraint(Sketcher.Constraint("Coincident", 0, 2, 1, 1))
sketch13.addConstraint(Sketcher.Constraint("Coincident", 1, 2, 2, 1))
sketch13.addConstraint(Sketcher.Constraint("Coincident", 2, 2, 3, 1))
sketch13.addConstraint(Sketcher.Constraint("Coincident", 3, 2, 0, 1))
sketch13.addConstraint(Sketcher.Constraint("Horizontal", 0))
sketch13.addConstraint(Sketcher.Constraint("Vertical", 1))
sketch13.addConstraint(Sketcher.Constraint("Horizontal", 2))
sketch13.addConstraint(Sketcher.Constraint("Vertical", 3))
sketch13.addConstraint(Sketcher.Constraint("DistanceX", 0, 2, 0, 1, Q("70 mm")))
sketch13.addConstraint(Sketcher.Constraint("DistanceY", 1, 1, 1, 2, Q("20 mm")))
sketch13.addConstraint(Sketcher.Constraint("DistanceY", 0, 2, -1, 1, Q("5.399949 mm")))
sketch13.addConstraint(Sketcher.Constraint("DistanceX", 0, 2, -1, 1, Q("232.704987 mm")))
pocket11 = body.newObject("PartDesign::Pocket", "Pocket010")
pocket11.Profile = sketch13
pocket11.Length = 1.5
pocket11.Reversed = True
doc.recompute()

fillet = body.newObject("PartDesign::Fillet", "Fillet")
fillet.Base = (pocket11, edges_at(pocket11, [
    (245.929, -141.369, 5.3),
    (39.185, -141.369, 3.8),
    (39.185, -248.344, 5.3),
    (245.929, -248.344, 5.3),
]))
fillet.Radius = 1.5

sketch14 = body.newObject("Sketcher::SketchObject", "Sketch013")
sketch14.AttachmentSupport = (doc.getObject("XY_Plane"), [""])
sketch14.MapMode = "FlatFace"
sketch14.AttachmentOffset = App.Placement(Vector(0, 0, 16.600051), App.Rotation())
sketch14.addGeometry(Part.LineSegment(Vector(54.485794, -245.34379, 0), Vector(54.485794, -247.137129, 0)), False)
sketch14.addGeometry(Part.LineSegment(Vector(54.485794, -247.137129, 0), Vector(72.51605, -247.137129, 0)), False)
sketch14.addGeometry(Part.LineSegment(Vector(72.51605, -247.137129, 0), Vector(72.51605, -245.34379, 0)), False)
sketch14.addGeometry(Part.LineSegment(Vector(72.51605, -245.34379, 0), Vector(54.485794, -245.34379, 0)), False)
sketch14.addGeometry(Part.LineSegment(Vector(96.126703, -245.34379, 0), Vector(96.126703, -247.137129, 0)), False)
sketch14.addGeometry(Part.LineSegment(Vector(96.126703, -247.137129, 0), Vector(114.233295, -247.137129, 0)), False)
sketch14.addGeometry(Part.LineSegment(Vector(114.233295, -247.137129, 0), Vector(114.233295, -245.34379, 0)), False)
sketch14.addGeometry(Part.LineSegment(Vector(114.233295, -245.34379, 0), Vector(96.126703, -245.34379, 0)), False)
sketch14.addGeometry(Part.LineSegment(Vector(138.764303, -245.34379, 0), Vector(138.764303, -247.137129, 0)), False)
sketch14.addGeometry(Part.LineSegment(Vector(138.764303, -247.137129, 0), Vector(156.854159, -247.137129, 0)), False)
sketch14.addGeometry(Part.LineSegment(Vector(156.854159, -247.137129, 0), Vector(156.854159, -245.34379, 0)), False)
sketch14.addGeometry(Part.LineSegment(Vector(156.854159, -245.34379, 0), Vector(138.764303, -245.34379, 0)), False)
sketch14.addGeometry(Part.LineSegment(Vector(181.556126, -245.34379, 0), Vector(181.556126, -247.137129, 0)), False)
sketch14.addGeometry(Part.LineSegment(Vector(181.556126, -247.137129, 0), Vector(199.555883, -247.137129, 0)), False)
sketch14.addGeometry(Part.LineSegment(Vector(199.555883, -247.137129, 0), Vector(199.555883, -245.34379, 0)), False)
sketch14.addGeometry(Part.LineSegment(Vector(199.555883, -245.34379, 0), Vector(181.556126, -245.34379, 0)), False)
sketch14.addGeometry(Part.LineSegment(Vector(224.218449, -245.34379, 0), Vector(224.218449, -247.137129, 0)), False)
sketch14.addGeometry(Part.LineSegment(Vector(224.218449, -247.137129, 0), Vector(242.248903, -247.137129, 0)), False)
sketch14.addGeometry(Part.LineSegment(Vector(242.248903, -247.137129, 0), Vector(242.248903, -245.34379, 0)), False)
sketch14.addGeometry(Part.LineSegment(Vector(242.248903, -245.34379, 0), Vector(224.218449, -245.34379, 0)), False)
sketch14.addConstraint(Sketcher.Constraint("Coincident", 0, 2, 1, 1))
sketch14.addConstraint(Sketcher.Constraint("Coincident", 1, 2, 2, 1))
sketch14.addConstraint(Sketcher.Constraint("Coincident", 2, 2, 3, 1))
sketch14.addConstraint(Sketcher.Constraint("Coincident", 3, 2, 0, 1))
sketch14.addConstraint(Sketcher.Constraint("Coincident", 4, 2, 5, 1))
sketch14.addConstraint(Sketcher.Constraint("Coincident", 5, 2, 6, 1))
sketch14.addConstraint(Sketcher.Constraint("Coincident", 6, 2, 7, 1))
sketch14.addConstraint(Sketcher.Constraint("Coincident", 7, 2, 4, 1))
sketch14.addConstraint(Sketcher.Constraint("Coincident", 8, 2, 9, 1))
sketch14.addConstraint(Sketcher.Constraint("Coincident", 9, 2, 10, 1))
sketch14.addConstraint(Sketcher.Constraint("Coincident", 10, 2, 11, 1))
sketch14.addConstraint(Sketcher.Constraint("Coincident", 11, 2, 8, 1))
sketch14.addConstraint(Sketcher.Constraint("Coincident", 12, 2, 13, 1))
sketch14.addConstraint(Sketcher.Constraint("Coincident", 13, 2, 14, 1))
sketch14.addConstraint(Sketcher.Constraint("Coincident", 14, 2, 15, 1))
sketch14.addConstraint(Sketcher.Constraint("Coincident", 15, 2, 12, 1))
sketch14.addConstraint(Sketcher.Constraint("Coincident", 16, 2, 17, 1))
sketch14.addConstraint(Sketcher.Constraint("Coincident", 17, 2, 18, 1))
sketch14.addConstraint(Sketcher.Constraint("Coincident", 18, 2, 19, 1))
sketch14.addConstraint(Sketcher.Constraint("Coincident", 19, 2, 16, 1))
sketch14.addConstraint(Sketcher.Constraint("Vertical", 0))
sketch14.addConstraint(Sketcher.Constraint("Horizontal", 1))
sketch14.addConstraint(Sketcher.Constraint("Vertical", 2))
sketch14.addConstraint(Sketcher.Constraint("Horizontal", 3))
sketch14.addConstraint(Sketcher.Constraint("Vertical", 4))
sketch14.addConstraint(Sketcher.Constraint("Horizontal", 5))
sketch14.addConstraint(Sketcher.Constraint("Vertical", 6))
sketch14.addConstraint(Sketcher.Constraint("Horizontal", 7))
sketch14.addConstraint(Sketcher.Constraint("Vertical", 8))
sketch14.addConstraint(Sketcher.Constraint("Horizontal", 9))
sketch14.addConstraint(Sketcher.Constraint("Vertical", 10))
sketch14.addConstraint(Sketcher.Constraint("Horizontal", 11))
sketch14.addConstraint(Sketcher.Constraint("Vertical", 12))
sketch14.addConstraint(Sketcher.Constraint("Horizontal", 13))
sketch14.addConstraint(Sketcher.Constraint("Vertical", 14))
sketch14.addConstraint(Sketcher.Constraint("Horizontal", 15))
sketch14.addConstraint(Sketcher.Constraint("Vertical", 16))
sketch14.addConstraint(Sketcher.Constraint("Horizontal", 17))
sketch14.addConstraint(Sketcher.Constraint("Vertical", 18))
sketch14.addConstraint(Sketcher.Constraint("Horizontal", 19))
sketch14.addConstraint(Sketcher.Constraint("Horizontal", 1, 2, 4, 2))
sketch14.addConstraint(Sketcher.Constraint("Horizontal", 3, 2, 6, 2))
sketch14.addConstraint(Sketcher.Constraint("Horizontal", 5, 2, 8, 2))
sketch14.addConstraint(Sketcher.Constraint("Horizontal", 7, 2, 10, 2))
sketch14.addConstraint(Sketcher.Constraint("Horizontal", 9, 2, 12, 2))
sketch14.addConstraint(Sketcher.Constraint("Horizontal", 11, 2, 14, 2))
sketch14.addConstraint(Sketcher.Constraint("Horizontal", 13, 2, 16, 2))
sketch14.addConstraint(Sketcher.Constraint("Horizontal", 15, 2, 18, 2))
sketch14.addConstraint(Sketcher.Constraint("DistanceX", 5, 1, 5, 2, Q("18.106592 mm")))
sketch14.addConstraint(Sketcher.Constraint("DistanceY", 0, 2, 0, 1, Q("1.79334 mm")))
sketch14.addConstraint(Sketcher.Constraint("DistanceX", 0, 2, 5, 2, Q("59.747501 mm")))
sketch14.addConstraint(Sketcher.Constraint("DistanceX", 4, 2, 8, 2, Q("42.6376 mm")))
sketch14.addConstraint(Sketcher.Constraint("DistanceX", 1, 1, 1, 2, Q("18.030256 mm")))
sketch14.addConstraint(Sketcher.Constraint("DistanceX", 9, 1, 9, 2, Q("18.089855 mm")))
sketch14.addConstraint(Sketcher.Constraint("DistanceX", 13, 1, 13, 2, Q("17.999756 mm")))
sketch14.addConstraint(Sketcher.Constraint("DistanceX", 17, 1, 17, 2, Q("18.030454 mm")))
sketch14.addConstraint(Sketcher.Constraint("DistanceY", 0, 2, -1, 1, Q("247.137129 mm")))
sketch14.addConstraint(Sketcher.Constraint("DistanceX", -1, 1, 1, 2, Q("72.51605 mm")))
sketch14.addConstraint(Sketcher.Constraint("DistanceX", -1, 1, 16, 2, Q("224.218449 mm")))
sketch14.addConstraint(Sketcher.Constraint("DistanceX", 5, 2, 12, 2, Q("67.322831 mm")))
pocket12 = body.newObject("PartDesign::Pocket", "Pocket011")
pocket12.Profile = sketch14
pocket12.Length = 6.891726

sketch15 = body.newObject("Sketcher::SketchObject", "Sketch014")
sketch15.AttachmentSupport = (doc.getObject("XY_Plane"), [""])
sketch15.MapMode = "FlatFace"
sketch15.AttachmentOffset = App.Placement(Vector(0, 0, 16.600051), App.Rotation())
sketch15.addGeometry(Part.LineSegment(Vector(134.058147, -142.429789, 0), Vector(134.058147, -144.368989, 0)), False)
sketch15.addGeometry(Part.LineSegment(Vector(134.058147, -144.368989, 0), Vector(152.396317, -144.368989, 0)), False)
sketch15.addGeometry(Part.LineSegment(Vector(152.396317, -144.368989, 0), Vector(152.396317, -142.429789, 0)), False)
sketch15.addGeometry(Part.LineSegment(Vector(152.396317, -142.429789, 0), Vector(134.058147, -142.429789, 0)), False)
sketch15.addConstraint(Sketcher.Constraint("Coincident", 0, 2, 1, 1))
sketch15.addConstraint(Sketcher.Constraint("Coincident", 1, 2, 2, 1))
sketch15.addConstraint(Sketcher.Constraint("Coincident", 2, 2, 3, 1))
sketch15.addConstraint(Sketcher.Constraint("Coincident", 3, 2, 0, 1))
sketch15.addConstraint(Sketcher.Constraint("Vertical", 0))
sketch15.addConstraint(Sketcher.Constraint("Horizontal", 1))
sketch15.addConstraint(Sketcher.Constraint("Vertical", 2))
sketch15.addConstraint(Sketcher.Constraint("Horizontal", 3))
sketch15.addConstraint(Sketcher.Constraint("DistanceY", 0, 2, 0, 1, Q("1.9392 mm")))
sketch15.addConstraint(Sketcher.Constraint("DistanceX", 1, 1, 1, 2, Q("18.33817 mm")))
sketch15.addConstraint(Sketcher.Constraint("DistanceY", 0, 2, -1, 1, Q("144.368989 mm")))
sketch15.addConstraint(Sketcher.Constraint("DistanceX", -1, 1, 0, 2, Q("134.058147 mm")))
pocket13 = body.newObject("PartDesign::Pocket", "Pocket012")
pocket13.Profile = sketch15
pocket13.Length = 7.158781

sketch16 = body.newObject("Sketcher::SketchObject", "Sketch015")
sketch16.AttachmentSupport = (doc.getObject("XY_Plane"), [""])
sketch16.MapMode = "FlatFace"
sketch16.AttachmentOffset = App.Placement(Vector(0, 0, 16.600051), App.Rotation())
sketch16.addGeometry(Part.LineSegment(Vector(97.285729, -141.368989, 0), Vector(97.285729, -144.868989, 0)), False)
sketch16.addGeometry(Part.LineSegment(Vector(97.285729, -144.868989, 0), Vector(104.747537, -144.868989, 0)), False)
sketch16.addGeometry(Part.LineSegment(Vector(104.747537, -144.868989, 0), Vector(104.747537, -141.368989, 0)), False)
sketch16.addGeometry(Part.LineSegment(Vector(104.747537, -141.368989, 0), Vector(97.285729, -141.368989, 0)), False)
sketch16.addGeometry(Part.LineSegment(Vector(39.184785, -170.570378, 0), Vector(39.184785, -176.729133, 0)), False)
sketch16.addGeometry(Part.LineSegment(Vector(39.184785, -176.729133, 0), Vector(42.684785, -176.729133, 0)), False)
sketch16.addGeometry(Part.LineSegment(Vector(42.684785, -176.729133, 0), Vector(42.684785, -170.570378, 0)), False)
sketch16.addGeometry(Part.LineSegment(Vector(42.684785, -170.570378, 0), Vector(39.184785, -170.570378, 0)), False)
sketch16.addGeometry(Part.LineSegment(Vector(39.184785, -194.201004, 0), Vector(39.184785, -200.30766, 0)), False)
sketch16.addGeometry(Part.LineSegment(Vector(39.184785, -200.30766, 0), Vector(42.684785, -200.30766, 0)), False)
sketch16.addGeometry(Part.LineSegment(Vector(42.684785, -200.30766, 0), Vector(42.684785, -194.201004, 0)), False)
sketch16.addGeometry(Part.LineSegment(Vector(42.684785, -194.201004, 0), Vector(39.184785, -194.201004, 0)), False)
sketch16.addGeometry(Part.LineSegment(Vector(39.184785, -217.652341, 0), Vector(39.184785, -223.90026, 0)), False)
sketch16.addGeometry(Part.LineSegment(Vector(39.184785, -223.90026, 0), Vector(42.684785, -223.90026, 0)), False)
sketch16.addGeometry(Part.LineSegment(Vector(42.684785, -223.90026, 0), Vector(42.684785, -217.652341, 0)), False)
sketch16.addGeometry(Part.LineSegment(Vector(42.684785, -217.652341, 0), Vector(39.184785, -217.652341, 0)), False)
sketch16.addConstraint(Sketcher.Constraint("Coincident", 0, 2, 1, 1))
sketch16.addConstraint(Sketcher.Constraint("Coincident", 1, 2, 2, 1))
sketch16.addConstraint(Sketcher.Constraint("Coincident", 2, 2, 3, 1))
sketch16.addConstraint(Sketcher.Constraint("Coincident", 3, 2, 0, 1))
sketch16.addConstraint(Sketcher.Constraint("Coincident", 4, 2, 5, 1))
sketch16.addConstraint(Sketcher.Constraint("Coincident", 5, 2, 6, 1))
sketch16.addConstraint(Sketcher.Constraint("Coincident", 6, 2, 7, 1))
sketch16.addConstraint(Sketcher.Constraint("Coincident", 7, 2, 4, 1))
sketch16.addConstraint(Sketcher.Constraint("Coincident", 8, 2, 9, 1))
sketch16.addConstraint(Sketcher.Constraint("Coincident", 9, 2, 10, 1))
sketch16.addConstraint(Sketcher.Constraint("Coincident", 10, 2, 11, 1))
sketch16.addConstraint(Sketcher.Constraint("Coincident", 11, 2, 8, 1))
sketch16.addConstraint(Sketcher.Constraint("Coincident", 12, 2, 13, 1))
sketch16.addConstraint(Sketcher.Constraint("Coincident", 13, 2, 14, 1))
sketch16.addConstraint(Sketcher.Constraint("Coincident", 14, 2, 15, 1))
sketch16.addConstraint(Sketcher.Constraint("Coincident", 15, 2, 12, 1))
sketch16.addConstraint(Sketcher.Constraint("Vertical", 0))
sketch16.addConstraint(Sketcher.Constraint("Horizontal", 1))
sketch16.addConstraint(Sketcher.Constraint("Vertical", 2))
sketch16.addConstraint(Sketcher.Constraint("Horizontal", 3))
sketch16.addConstraint(Sketcher.Constraint("Vertical", 4))
sketch16.addConstraint(Sketcher.Constraint("Horizontal", 5))
sketch16.addConstraint(Sketcher.Constraint("Vertical", 6))
sketch16.addConstraint(Sketcher.Constraint("Horizontal", 7))
sketch16.addConstraint(Sketcher.Constraint("Vertical", 8))
sketch16.addConstraint(Sketcher.Constraint("Horizontal", 9))
sketch16.addConstraint(Sketcher.Constraint("Vertical", 10))
sketch16.addConstraint(Sketcher.Constraint("Horizontal", 11))
sketch16.addConstraint(Sketcher.Constraint("Vertical", 12))
sketch16.addConstraint(Sketcher.Constraint("Horizontal", 13))
sketch16.addConstraint(Sketcher.Constraint("Vertical", 14))
sketch16.addConstraint(Sketcher.Constraint("Horizontal", 15))
sketch16.addConstraint(Sketcher.Constraint("Vertical", 7, 2, 8, 2))
sketch16.addConstraint(Sketcher.Constraint("Vertical", 6, 2, 9, 2))
sketch16.addConstraint(Sketcher.Constraint("Vertical", 11, 2, 12, 2))
sketch16.addConstraint(Sketcher.Constraint("Vertical", 10, 2, 13, 2))
sketch16.addConstraint(Sketcher.Constraint("Equal", 15, 0))
sketch16.addConstraint(Sketcher.Constraint("DistanceX", 5, 1, 5, 2, Q("3.5 mm")))
sketch16.addConstraint(Sketcher.Constraint("DistanceY", 12, 2, 12, 1, Q("6.247919 mm")))
sketch16.addConstraint(Sketcher.Constraint("DistanceY", 12, 2, 8, 2, Q("23.5926 mm")))
sketch16.addConstraint(Sketcher.Constraint("DistanceX", 1, 1, 1, 2, Q("7.461808 mm")))
sketch16.addConstraint(Sketcher.Constraint("DistanceY", 4, 2, 4, 1, Q("6.158756 mm")))
sketch16.addConstraint(Sketcher.Constraint("DistanceY", 8, 2, 8, 1, Q("6.106656 mm")))
sketch16.addConstraint(Sketcher.Constraint("DistanceX", -1, 1, 0, 2, Q("97.285729 mm")))
sketch16.addConstraint(Sketcher.Constraint("DistanceY", 0, 2, -1, 1, Q("144.868989 mm")))
sketch16.addConstraint(Sketcher.Constraint("DistanceY", 8, 2, -1, 1, Q("200.30766 mm")))
sketch16.addConstraint(Sketcher.Constraint("DistanceX", 4, 2, 1, 2, Q("65.562752 mm")))
sketch16.addConstraint(Sketcher.Constraint("DistanceY", 6, 2, 0, 2, Q("25.701388 mm")))
pocket14 = body.newObject("PartDesign::Pocket", "Pocket013")
pocket14.Profile = sketch16
pocket14.Length = 13

doc.recompute()
